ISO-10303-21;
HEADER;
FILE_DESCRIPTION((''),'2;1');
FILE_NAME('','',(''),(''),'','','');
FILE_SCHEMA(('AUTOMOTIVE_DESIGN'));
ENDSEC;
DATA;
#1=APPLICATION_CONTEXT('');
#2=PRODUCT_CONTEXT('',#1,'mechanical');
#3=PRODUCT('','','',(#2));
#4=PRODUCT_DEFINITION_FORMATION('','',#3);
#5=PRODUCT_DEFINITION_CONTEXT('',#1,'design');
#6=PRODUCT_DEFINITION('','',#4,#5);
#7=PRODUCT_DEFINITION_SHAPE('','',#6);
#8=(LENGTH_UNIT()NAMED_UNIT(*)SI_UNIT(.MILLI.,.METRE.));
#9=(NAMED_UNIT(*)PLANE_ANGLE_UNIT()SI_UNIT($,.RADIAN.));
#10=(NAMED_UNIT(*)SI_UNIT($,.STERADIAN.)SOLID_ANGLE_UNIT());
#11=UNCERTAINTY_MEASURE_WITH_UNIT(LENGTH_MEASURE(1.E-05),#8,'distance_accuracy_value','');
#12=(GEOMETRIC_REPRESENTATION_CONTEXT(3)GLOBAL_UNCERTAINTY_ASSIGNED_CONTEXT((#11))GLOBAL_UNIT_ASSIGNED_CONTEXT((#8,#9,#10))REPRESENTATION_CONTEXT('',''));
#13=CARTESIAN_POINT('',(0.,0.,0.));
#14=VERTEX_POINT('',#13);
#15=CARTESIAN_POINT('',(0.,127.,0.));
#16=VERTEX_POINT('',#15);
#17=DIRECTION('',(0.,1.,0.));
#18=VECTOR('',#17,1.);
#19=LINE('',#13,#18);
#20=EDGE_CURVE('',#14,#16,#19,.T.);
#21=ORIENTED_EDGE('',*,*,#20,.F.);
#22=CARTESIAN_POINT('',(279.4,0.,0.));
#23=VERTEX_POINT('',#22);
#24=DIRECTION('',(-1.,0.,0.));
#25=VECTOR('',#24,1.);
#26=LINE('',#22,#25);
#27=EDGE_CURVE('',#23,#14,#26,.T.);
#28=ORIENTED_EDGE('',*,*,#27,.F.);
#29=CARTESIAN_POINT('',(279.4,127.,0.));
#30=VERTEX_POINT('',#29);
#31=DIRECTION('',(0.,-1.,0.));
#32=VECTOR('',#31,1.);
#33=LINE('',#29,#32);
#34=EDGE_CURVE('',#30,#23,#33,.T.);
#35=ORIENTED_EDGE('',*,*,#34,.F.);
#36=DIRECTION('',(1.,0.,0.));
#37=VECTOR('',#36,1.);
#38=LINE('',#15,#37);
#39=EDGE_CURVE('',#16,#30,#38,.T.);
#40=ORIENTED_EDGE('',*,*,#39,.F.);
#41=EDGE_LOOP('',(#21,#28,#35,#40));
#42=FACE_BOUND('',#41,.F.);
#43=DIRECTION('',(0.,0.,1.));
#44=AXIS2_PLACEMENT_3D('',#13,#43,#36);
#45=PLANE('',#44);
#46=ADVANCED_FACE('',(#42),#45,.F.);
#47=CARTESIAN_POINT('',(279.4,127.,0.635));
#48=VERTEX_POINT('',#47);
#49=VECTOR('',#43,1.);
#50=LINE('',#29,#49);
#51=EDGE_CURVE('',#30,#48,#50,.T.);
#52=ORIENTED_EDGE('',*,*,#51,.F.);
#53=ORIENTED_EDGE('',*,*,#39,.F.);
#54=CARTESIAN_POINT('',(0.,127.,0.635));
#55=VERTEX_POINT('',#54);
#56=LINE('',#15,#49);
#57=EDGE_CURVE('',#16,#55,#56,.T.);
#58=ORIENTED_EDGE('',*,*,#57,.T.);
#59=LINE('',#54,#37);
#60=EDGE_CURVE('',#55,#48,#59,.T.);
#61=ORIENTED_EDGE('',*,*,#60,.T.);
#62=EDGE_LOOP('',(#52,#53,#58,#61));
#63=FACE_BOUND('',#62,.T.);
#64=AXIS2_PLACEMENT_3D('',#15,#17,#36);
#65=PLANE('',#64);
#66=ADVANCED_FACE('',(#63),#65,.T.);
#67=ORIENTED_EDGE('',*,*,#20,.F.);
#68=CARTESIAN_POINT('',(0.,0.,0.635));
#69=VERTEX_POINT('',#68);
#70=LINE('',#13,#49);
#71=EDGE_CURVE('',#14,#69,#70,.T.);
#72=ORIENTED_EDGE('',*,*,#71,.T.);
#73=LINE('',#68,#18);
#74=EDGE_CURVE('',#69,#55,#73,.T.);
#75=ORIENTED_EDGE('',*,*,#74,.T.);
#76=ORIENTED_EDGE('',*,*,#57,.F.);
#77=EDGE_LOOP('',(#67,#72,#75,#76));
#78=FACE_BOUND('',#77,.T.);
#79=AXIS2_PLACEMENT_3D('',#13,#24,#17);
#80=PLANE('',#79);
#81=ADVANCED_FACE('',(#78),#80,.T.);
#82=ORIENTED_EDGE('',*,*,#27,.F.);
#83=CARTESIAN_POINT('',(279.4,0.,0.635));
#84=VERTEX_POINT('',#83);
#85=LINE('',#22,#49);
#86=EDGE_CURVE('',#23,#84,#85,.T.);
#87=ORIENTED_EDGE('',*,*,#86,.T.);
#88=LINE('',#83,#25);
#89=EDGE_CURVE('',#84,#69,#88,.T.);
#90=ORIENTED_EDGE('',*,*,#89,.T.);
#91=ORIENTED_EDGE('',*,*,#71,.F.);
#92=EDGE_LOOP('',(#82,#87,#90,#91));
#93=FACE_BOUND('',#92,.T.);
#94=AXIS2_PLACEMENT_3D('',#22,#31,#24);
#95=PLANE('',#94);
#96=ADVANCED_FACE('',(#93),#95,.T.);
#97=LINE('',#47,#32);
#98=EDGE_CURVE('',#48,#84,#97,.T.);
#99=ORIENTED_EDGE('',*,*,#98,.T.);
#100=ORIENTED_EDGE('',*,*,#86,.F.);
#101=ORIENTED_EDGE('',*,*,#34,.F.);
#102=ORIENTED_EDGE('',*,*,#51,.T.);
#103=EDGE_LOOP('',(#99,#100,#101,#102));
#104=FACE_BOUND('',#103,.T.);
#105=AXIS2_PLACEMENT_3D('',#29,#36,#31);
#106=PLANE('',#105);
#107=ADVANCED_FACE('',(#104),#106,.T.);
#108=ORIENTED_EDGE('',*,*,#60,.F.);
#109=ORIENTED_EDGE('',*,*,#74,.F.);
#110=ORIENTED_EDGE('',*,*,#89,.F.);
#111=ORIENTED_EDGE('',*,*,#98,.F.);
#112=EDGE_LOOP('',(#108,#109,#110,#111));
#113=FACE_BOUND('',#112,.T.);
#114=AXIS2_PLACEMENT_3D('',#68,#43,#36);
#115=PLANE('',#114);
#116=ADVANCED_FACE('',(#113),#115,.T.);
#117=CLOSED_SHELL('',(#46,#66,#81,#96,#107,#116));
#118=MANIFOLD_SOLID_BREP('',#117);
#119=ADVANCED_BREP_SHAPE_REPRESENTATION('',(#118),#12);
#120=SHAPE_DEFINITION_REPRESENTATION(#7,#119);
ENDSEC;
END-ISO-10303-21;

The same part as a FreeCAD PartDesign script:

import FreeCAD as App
import Part
import Sketcher
Q = App.Units.Quantity

doc = App.newDocument("Part")
body = doc.addObject("PartDesign::Body", "Body")

# Sketch on XY plane
sketch1 = body.newObject("Sketcher::SketchObject", "Sketch")
sketch1.AttachmentSupport = (doc.getObject("XY_Plane"), [""])
sketch1.MapMode = "FlatFace"
sketch1.addGeometry(Part.LineSegment(App.Vector(0, 127, 0), App.Vector(0, 0, 0)), False)
sketch1.addGeometry(Part.LineSegment(App.Vector(0, 0, 0), App.Vector(279, 0, 0)), False)
sketch1.addGeometry(Part.LineSegment(App.Vector(279, 0, 0), App.Vector(279, 127, 0)), False)
sketch1.addGeometry(Part.LineSegment(App.Vector(279, 127, 0), App.Vector(0, 127, 0)), False)
sketch1.addConstraint(Sketcher.Constraint("Coincident", 0, 2, 1, 1))
sketch1.addConstraint(Sketcher.Constraint("Coincident", 1, 2, 2, 1))
sketch1.addConstraint(Sketcher.Constraint("Coincident", 2, 2, 3, 1))
sketch1.addConstraint(Sketcher.Constraint("Coincident", 3, 2, 0, 1))
sketch1.addConstraint(Sketcher.Constraint("Vertical", 0))
sketch1.addConstraint(Sketcher.Constraint("Horizontal", 1))
sketch1.addConstraint(Sketcher.Constraint("Vertical", 2))
sketch1.addConstraint(Sketcher.Constraint("Horizontal", 3))
sketch1.addConstraint(Sketcher.Constraint("Coincident", 0, 2, -1, 1))
sketch1.addConstraint(Sketcher.Constraint("DistanceX", 1, 1, 1, 2, Q("11 in")))
sketch1.addConstraint(Sketcher.Constraint("DistanceY", 0, 2, 0, 1, Q("5 in")))
pad1 = body.newObject("PartDesign::Pad", "Pad")
pad1.Profile = sketch1
pad1.Length = Q("0.025 in")

doc.recompute()
